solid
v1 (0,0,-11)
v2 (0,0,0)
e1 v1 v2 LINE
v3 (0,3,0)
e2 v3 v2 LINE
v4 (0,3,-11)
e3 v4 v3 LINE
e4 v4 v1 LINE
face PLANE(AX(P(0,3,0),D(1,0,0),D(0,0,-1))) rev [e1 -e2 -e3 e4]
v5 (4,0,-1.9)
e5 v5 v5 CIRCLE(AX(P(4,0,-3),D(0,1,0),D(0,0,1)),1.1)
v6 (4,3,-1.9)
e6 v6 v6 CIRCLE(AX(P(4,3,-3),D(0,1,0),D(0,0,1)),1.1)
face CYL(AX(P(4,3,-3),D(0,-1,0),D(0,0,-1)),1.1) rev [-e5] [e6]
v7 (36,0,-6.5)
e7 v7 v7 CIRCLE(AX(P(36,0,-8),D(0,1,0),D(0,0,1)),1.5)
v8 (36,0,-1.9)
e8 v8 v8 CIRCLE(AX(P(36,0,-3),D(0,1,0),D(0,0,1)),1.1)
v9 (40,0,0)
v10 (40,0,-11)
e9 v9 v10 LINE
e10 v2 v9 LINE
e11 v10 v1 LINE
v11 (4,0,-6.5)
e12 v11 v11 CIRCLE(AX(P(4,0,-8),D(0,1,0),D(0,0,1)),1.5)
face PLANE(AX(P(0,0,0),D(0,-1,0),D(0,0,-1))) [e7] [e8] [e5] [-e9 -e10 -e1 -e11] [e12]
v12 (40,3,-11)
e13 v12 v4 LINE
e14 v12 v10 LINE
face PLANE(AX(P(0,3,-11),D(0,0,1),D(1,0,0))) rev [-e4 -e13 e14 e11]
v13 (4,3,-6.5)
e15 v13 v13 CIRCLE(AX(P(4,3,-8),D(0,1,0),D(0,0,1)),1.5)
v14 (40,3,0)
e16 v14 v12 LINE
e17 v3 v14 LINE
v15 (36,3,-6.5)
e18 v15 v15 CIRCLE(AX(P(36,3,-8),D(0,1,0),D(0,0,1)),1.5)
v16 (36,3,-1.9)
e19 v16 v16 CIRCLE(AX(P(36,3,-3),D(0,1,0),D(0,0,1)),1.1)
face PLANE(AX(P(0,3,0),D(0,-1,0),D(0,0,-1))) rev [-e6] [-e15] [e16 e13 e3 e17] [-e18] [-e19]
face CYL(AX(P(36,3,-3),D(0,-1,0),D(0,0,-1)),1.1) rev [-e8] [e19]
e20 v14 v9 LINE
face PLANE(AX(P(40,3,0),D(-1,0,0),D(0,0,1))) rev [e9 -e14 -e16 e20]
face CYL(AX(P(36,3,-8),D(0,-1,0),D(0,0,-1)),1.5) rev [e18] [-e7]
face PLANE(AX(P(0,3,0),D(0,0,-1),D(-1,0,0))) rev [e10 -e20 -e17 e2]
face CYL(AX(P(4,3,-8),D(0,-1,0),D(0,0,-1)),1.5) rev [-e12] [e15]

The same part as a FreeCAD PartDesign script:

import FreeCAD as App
import Part
import Sketcher
from FreeCAD import Vector
Q = App.Units.Quantity

doc = App.newDocument("Part")
body = doc.addObject("PartDesign::Body", "Body")

# Sketch on XZ plane
sketch1 = doc.addObject("Sketcher::SketchObject", "Sketch")
body.addObject(sketch1)
sketch1.AttachmentSupport = (doc.XZ_Plane, [""])
sketch1.MapMode = "FlatFace"
sketch1.addGeometry(Part.LineSegment(Vector(0, -11, 0), Vector(0, 0, 0)), False)
sketch1.addGeometry(Part.LineSegment(Vector(0, 0, 0), Vector(40, 0, 0)), False)
sketch1.addGeometry(Part.LineSegment(Vector(40, 0, 0), Vector(40, -11, 0)), False)
sketch1.addGeometry(Part.LineSegment(Vector(40, -11, 0), Vector(0, -11, 0)), False)
sketch1.addGeometry(Part.Circle(Vector(4, -3, 0), Vector(0, 0, 1), 1.1), False)
sketch1.addGeometry(Part.Circle(Vector(36, -3, 0), Vector(0, 0, 1), 1.1), False)
sketch1.addGeometry(Part.Circle(Vector(4, -8, 0), Vector(0, 0, 1), 1.5), False)
sketch1.addGeometry(Part.Circle(Vector(36, -8, 0), Vector(0, 0, 1), 1.5), False)
sketch1.addConstraint(Sketcher.Constraint("Coincident", 0, 2, 1, 1))
sketch1.addConstraint(Sketcher.Constraint("Coincident", 1, 2, 2, 1))
sketch1.addConstraint(Sketcher.Constraint("Coincident", 2, 2, 3, 1))
sketch1.addConstraint(Sketcher.Constraint("Coincident", 3, 2, 0, 1))
sketch1.addConstraint(Sketcher.Constraint("Vertical", 0))
sketch1.addConstraint(Sketcher.Constraint("Horizontal", 1))
sketch1.addConstraint(Sketcher.Constraint("Vertical", 2))
sketch1.addConstraint(Sketcher.Constraint("Horizontal", 3))
sketch1.addConstraint(Sketcher.Constraint("Coincident", 0, 2, -1, 1))
sketch1.addConstraint(Sketcher.Constraint("Equal", 4, 5))
sketch1.addConstraint(Sketcher.Constraint("Equal", 6, 7))
sketch1.addConstraint(Sketcher.Constraint("Horizontal", 4, 3, 5, 3))
sketch1.addConstraint(Sketcher.Constraint("Horizontal", 6, 3, 7, 3))
sketch1.addConstraint(Sketcher.Constraint("Vertical", 4, 3, 6, 3))
sketch1.addConstraint(Sketcher.Constraint("Vertical", 5, 3, 7, 3))
sketch1.addConstraint(Sketcher.Constraint("Diameter", 6, Q("3 mm")))
sketch1.addConstraint(Sketcher.Constraint("Diameter", 4, Q("2.2 mm")))
sketch1.addConstraint(Sketcher.Constraint("DistanceX", 1, 1, 1, 2, Q("40 mm")))
sketch1.addConstraint(Sketcher.Constraint("DistanceY", 0, 1, 0, 2, Q("11 mm")))
sketch1.addConstraint(Sketcher.Constraint("DistanceX", -1, 1, 4, 3, Q("4 mm")))
sketch1.addConstraint(Sketcher.Constraint("DistanceY", 4, 3, -1, 1, Q("3 mm")))
sketch1.addConstraint(Sketcher.Constraint("DistanceX", -1, 1, 5, 3, Q("36 mm")))
sketch1.addConstraint(Sketcher.Constraint("DistanceY", 6, 3, -1, 1, Q("8 mm")))
pad1 = doc.addObject("PartDesign::Pad", "Pad")
body.addObject(pad1)
pad1.Profile = sketch1
pad1.Length = 3
pad1.Reversed = True

doc.recompute()
